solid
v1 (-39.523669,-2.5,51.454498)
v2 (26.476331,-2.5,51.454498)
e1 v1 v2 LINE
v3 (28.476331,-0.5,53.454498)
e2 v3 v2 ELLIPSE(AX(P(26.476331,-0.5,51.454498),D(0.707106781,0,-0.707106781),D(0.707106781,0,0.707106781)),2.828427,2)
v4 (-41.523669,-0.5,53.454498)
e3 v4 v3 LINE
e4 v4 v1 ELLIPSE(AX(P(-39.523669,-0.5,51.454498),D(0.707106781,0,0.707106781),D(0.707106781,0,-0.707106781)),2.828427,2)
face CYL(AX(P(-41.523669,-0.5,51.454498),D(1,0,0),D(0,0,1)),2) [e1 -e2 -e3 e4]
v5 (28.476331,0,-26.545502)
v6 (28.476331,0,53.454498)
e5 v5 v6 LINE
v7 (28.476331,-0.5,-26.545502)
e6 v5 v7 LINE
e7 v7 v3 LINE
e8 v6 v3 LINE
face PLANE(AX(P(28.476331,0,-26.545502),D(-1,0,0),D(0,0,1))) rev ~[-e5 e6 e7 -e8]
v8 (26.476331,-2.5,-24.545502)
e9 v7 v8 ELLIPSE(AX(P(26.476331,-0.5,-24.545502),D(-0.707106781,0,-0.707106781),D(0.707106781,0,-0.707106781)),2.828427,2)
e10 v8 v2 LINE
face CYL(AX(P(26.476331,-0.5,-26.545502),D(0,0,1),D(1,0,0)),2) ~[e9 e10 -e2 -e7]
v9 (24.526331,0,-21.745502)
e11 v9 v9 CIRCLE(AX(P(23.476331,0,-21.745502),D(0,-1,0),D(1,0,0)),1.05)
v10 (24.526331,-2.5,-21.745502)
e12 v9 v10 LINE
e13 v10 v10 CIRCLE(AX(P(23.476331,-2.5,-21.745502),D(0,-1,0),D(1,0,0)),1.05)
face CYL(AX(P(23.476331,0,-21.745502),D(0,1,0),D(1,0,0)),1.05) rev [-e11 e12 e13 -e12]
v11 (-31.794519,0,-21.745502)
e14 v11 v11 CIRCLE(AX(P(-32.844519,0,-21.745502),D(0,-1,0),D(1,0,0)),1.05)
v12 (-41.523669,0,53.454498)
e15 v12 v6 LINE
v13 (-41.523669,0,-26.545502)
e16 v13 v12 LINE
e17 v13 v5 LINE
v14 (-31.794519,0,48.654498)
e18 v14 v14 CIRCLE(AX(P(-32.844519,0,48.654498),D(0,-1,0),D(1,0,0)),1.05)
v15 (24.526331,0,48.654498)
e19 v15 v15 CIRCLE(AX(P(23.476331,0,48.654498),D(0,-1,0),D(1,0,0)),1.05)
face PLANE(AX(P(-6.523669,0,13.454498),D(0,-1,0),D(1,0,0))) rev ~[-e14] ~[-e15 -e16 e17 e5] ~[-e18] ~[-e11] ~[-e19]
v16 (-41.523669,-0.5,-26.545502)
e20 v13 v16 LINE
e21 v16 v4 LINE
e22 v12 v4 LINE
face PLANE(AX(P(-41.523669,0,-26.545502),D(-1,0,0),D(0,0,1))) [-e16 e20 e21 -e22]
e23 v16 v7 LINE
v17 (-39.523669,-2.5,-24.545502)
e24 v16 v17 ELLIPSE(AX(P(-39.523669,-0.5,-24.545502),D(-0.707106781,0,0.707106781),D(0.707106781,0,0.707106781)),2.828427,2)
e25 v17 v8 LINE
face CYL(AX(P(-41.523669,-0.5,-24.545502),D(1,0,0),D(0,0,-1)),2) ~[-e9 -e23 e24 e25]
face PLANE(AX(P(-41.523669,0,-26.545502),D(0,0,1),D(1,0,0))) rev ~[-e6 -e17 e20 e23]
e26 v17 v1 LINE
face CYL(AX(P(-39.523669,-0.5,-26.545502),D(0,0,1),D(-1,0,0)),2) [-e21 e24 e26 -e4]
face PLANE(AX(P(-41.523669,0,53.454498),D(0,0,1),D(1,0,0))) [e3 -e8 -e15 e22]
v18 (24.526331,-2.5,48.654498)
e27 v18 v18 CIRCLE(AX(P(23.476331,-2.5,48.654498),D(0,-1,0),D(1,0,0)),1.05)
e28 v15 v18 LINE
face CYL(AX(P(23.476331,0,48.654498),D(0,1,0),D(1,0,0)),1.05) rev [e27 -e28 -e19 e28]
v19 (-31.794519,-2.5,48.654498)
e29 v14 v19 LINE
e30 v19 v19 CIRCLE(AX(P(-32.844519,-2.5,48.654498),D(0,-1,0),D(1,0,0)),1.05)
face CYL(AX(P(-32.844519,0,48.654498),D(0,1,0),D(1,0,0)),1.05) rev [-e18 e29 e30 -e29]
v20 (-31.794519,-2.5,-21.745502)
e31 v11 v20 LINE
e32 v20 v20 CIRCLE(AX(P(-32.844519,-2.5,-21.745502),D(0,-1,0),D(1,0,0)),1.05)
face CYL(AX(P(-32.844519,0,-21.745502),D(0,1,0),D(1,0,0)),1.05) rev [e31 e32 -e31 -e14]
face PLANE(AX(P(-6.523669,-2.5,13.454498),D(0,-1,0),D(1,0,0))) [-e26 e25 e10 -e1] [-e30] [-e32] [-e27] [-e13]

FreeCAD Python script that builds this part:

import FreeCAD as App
import Part
import Sketcher
from FreeCAD import Vector


def edges_at(feature, points):
    """Names of the edges that pass closest to the given points."""
    edges = feature.Shape.Edges
    near = lambda p: min(range(len(edges)), key=lambda i: edges[i].distToShape(Part.Vertex(*p))[0])
    return sorted({f"Edge{near(p) + 1}" for p in points})

doc = App.newDocument("Part")
params = doc.addObject("Spreadsheet::Sheet", "Params")
for row, (alias, value) in enumerate([
    ("sketch1_diameter", "2.1 mm"),
    ("sketch1_width", "70 mm"),
    ("sketch1_height", "80 mm"),
    ("pad1_length", "2.5 mm"),
    ("fillet_radius", "2 mm"),
], start=1):
    params.set(f"A{row}", alias)
    params.set(f"B{row}", "=" + value)
    params.setAlias(f"B{row}", alias)

body = doc.addObject("PartDesign::Body", "Body")

# Sketch on XZ plane
sketch1 = body.newObject("Sketcher::SketchObject", "Sketch")
sketch1.AttachmentSupport = (doc.getObject("XZ_Plane"), [""])
sketch1.MapMode = "FlatFace"
sketch1.addGeometry(Part.LineSegment(Vector(-41.5, 53.5, 0), Vector(-41.5, -26.5, 0)), False)
sketch1.addGeometry(Part.LineSegment(Vector(-41.5, -26.5, 0), Vector(28.5, -26.5, 0)), False)
sketch1.addGeometry(Part.LineSegment(Vector(28.5, -26.5, 0), Vector(28.5, 53.5, 0)), False)
sketch1.addGeometry(Part.LineSegment(Vector(28.5, 53.5, 0), Vector(-41.5, 53.5, 0)), False)
sketch1.addGeometry(Part.Circle(Vector(-32.8, -21.7, 0), Vector(0, 0, 1), 1.1), False)
sketch1.addGeometry(Part.Circle(Vector(23.5, -21.7, 0), Vector(0, 0, 1), 1.1), False)
sketch1.addGeometry(Part.Circle(Vector(-32.8, 48.7, 0), Vector(0, 0, 1), 1.1), False)
sketch1.addGeometry(Part.Circle(Vector(23.5, 48.7, 0), Vector(0, 0, 1), 1.1), False)
sketch1.addConstraint(Sketcher.Constraint("Coincident", 0, 2, 1, 1))
sketch1.addConstraint(Sketcher.Constraint("Coincident", 1, 2, 2, 1))
sketch1.addConstraint(Sketcher.Constraint("Coincident", 2, 2, 3, 1))
sketch1.addConstraint(Sketcher.Constraint("Coincident", 3, 2, 0, 1))
sketch1.addConstraint(Sketcher.Constraint("Vertical", 0))
sketch1.addConstraint(Sketcher.Constraint("Horizontal", 1))
sketch1.addConstraint(Sketcher.Constraint("Vertical", 2))
sketch1.addConstraint(Sketcher.Constraint("Horizontal", 3))
sketch1.addConstraint(Sketcher.Constraint("Equal", 4, 5))
sketch1.addConstraint(Sketcher.Constraint("Equal", 5, 6))
sketch1.addConstraint(Sketcher.Constraint("Equal", 6, 7))
sketch1.addConstraint(Sketcher.Constraint("Horizontal", 4, 3, 5, 3))
sketch1.addConstraint(Sketcher.Constraint("Horizontal", 6, 3, 7, 3))
sketch1.addConstraint(Sketcher.Constraint("Vertical", 4, 3, 6, 3))
sketch1.addConstraint(Sketcher.Constraint("Vertical", 5, 3, 7, 3))
sketch1.addConstraint(Sketcher.Constraint("Diameter", 4, 2.1))
sketch1.addConstraint(Sketcher.Constraint("DistanceX", 1, 1, 1, 2, 70.0))
sketch1.addConstraint(Sketcher.Constraint("DistanceY", 0, 2, 0, 1, 80.0))
sketch1.addConstraint(Sketcher.Constraint("DistanceX", 0, 2, 5, 3, 65.0))
sketch1.addConstraint(Sketcher.Constraint("DistanceY", 4, 3, 6, 3, 70.4))
sketch1.addConstraint(Sketcher.Constraint("DistanceY", 0, 2, 4, 3, 4.8))
sketch1.addConstraint(Sketcher.Constraint("DistanceY", 4, 3, -1, 1, 21.745502))
sketch1.addConstraint(Sketcher.Constraint("DistanceX", 4, 3, -1, 1, 32.844519))
sketch1.addConstraint(Sketcher.Constraint("DistanceX", -1, 1, 5, 3, 23.476331))
sketch1.setExpression("Constraints[15]", "Params.sketch1_diameter")
sketch1.setExpression("Constraints[16]", "Params.sketch1_width")
sketch1.setExpression("Constraints[17]", "Params.sketch1_height")
pad1 = body.newObject("PartDesign::Pad", "Pad")
pad1.Profile = sketch1
pad1.setExpression("Length", "Params.pad1_length")
doc.recompute()

fillet = body.newObject("PartDesign::Fillet", "Fillet")
fillet.Base = (pad1, edges_at(pad1, [
    (-6.524, -2.5, 53.454),
    (-41.524, -2.5, 13.454),
    (-6.524, -2.5, -26.546),
    (28.476, -2.5, 13.454),
]))
fillet.setExpression("Radius", "Params.fillet_radius")

doc.recompute()
